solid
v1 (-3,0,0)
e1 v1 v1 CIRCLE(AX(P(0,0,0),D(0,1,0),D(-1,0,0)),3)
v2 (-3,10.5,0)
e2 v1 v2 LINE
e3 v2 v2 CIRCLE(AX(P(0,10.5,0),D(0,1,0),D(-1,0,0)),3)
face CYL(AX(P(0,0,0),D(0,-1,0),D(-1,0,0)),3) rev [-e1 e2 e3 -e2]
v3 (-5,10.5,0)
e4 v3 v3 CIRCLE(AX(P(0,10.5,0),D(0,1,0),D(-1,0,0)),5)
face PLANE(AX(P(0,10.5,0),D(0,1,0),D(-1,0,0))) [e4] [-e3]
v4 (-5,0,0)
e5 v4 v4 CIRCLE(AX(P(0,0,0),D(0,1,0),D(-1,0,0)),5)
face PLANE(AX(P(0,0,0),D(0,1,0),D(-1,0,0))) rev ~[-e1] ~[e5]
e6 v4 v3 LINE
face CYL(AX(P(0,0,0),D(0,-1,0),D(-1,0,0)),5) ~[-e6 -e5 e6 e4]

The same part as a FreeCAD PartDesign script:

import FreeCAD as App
import Part
import Sketcher
from FreeCAD import Vector
Q = App.Units.Quantity

doc = App.newDocument("Part")
body = doc.addObject("PartDesign::Body", "Body")

# Sketch on XZ plane
sketch1 = body.newObject("Sketcher::SketchObject", "Sketch")
sketch1.AttachmentSupport = (doc.getObject("XZ_Plane"), [""])
sketch1.MapMode = "FlatFace"
sketch1.addGeometry(Part.Circle(Vector(0, 0, 0), Vector(0, 0, 1), 5), False)
sketch1.addGeometry(Part.Circle(Vector(0, 0, 0), Vector(0, 0, 1), 3), False)
sketch1.addConstraint(Sketcher.Constraint("Coincident", 0, 3, -1, 1))
sketch1.addConstraint(Sketcher.Constraint("Coincident", 1, 3, -1, 1))
sketch1.addConstraint(Sketcher.Constraint("Diameter", 0, Q("10 mm")))
sketch1.addConstraint(Sketcher.Constraint("Diameter", 1, Q("6 mm")))
pad1 = body.newObject("PartDesign::Pad", "Pad")
pad1.Profile = sketch1
pad1.Length = 10.5
pad1.Reversed = True

doc.recompute()
